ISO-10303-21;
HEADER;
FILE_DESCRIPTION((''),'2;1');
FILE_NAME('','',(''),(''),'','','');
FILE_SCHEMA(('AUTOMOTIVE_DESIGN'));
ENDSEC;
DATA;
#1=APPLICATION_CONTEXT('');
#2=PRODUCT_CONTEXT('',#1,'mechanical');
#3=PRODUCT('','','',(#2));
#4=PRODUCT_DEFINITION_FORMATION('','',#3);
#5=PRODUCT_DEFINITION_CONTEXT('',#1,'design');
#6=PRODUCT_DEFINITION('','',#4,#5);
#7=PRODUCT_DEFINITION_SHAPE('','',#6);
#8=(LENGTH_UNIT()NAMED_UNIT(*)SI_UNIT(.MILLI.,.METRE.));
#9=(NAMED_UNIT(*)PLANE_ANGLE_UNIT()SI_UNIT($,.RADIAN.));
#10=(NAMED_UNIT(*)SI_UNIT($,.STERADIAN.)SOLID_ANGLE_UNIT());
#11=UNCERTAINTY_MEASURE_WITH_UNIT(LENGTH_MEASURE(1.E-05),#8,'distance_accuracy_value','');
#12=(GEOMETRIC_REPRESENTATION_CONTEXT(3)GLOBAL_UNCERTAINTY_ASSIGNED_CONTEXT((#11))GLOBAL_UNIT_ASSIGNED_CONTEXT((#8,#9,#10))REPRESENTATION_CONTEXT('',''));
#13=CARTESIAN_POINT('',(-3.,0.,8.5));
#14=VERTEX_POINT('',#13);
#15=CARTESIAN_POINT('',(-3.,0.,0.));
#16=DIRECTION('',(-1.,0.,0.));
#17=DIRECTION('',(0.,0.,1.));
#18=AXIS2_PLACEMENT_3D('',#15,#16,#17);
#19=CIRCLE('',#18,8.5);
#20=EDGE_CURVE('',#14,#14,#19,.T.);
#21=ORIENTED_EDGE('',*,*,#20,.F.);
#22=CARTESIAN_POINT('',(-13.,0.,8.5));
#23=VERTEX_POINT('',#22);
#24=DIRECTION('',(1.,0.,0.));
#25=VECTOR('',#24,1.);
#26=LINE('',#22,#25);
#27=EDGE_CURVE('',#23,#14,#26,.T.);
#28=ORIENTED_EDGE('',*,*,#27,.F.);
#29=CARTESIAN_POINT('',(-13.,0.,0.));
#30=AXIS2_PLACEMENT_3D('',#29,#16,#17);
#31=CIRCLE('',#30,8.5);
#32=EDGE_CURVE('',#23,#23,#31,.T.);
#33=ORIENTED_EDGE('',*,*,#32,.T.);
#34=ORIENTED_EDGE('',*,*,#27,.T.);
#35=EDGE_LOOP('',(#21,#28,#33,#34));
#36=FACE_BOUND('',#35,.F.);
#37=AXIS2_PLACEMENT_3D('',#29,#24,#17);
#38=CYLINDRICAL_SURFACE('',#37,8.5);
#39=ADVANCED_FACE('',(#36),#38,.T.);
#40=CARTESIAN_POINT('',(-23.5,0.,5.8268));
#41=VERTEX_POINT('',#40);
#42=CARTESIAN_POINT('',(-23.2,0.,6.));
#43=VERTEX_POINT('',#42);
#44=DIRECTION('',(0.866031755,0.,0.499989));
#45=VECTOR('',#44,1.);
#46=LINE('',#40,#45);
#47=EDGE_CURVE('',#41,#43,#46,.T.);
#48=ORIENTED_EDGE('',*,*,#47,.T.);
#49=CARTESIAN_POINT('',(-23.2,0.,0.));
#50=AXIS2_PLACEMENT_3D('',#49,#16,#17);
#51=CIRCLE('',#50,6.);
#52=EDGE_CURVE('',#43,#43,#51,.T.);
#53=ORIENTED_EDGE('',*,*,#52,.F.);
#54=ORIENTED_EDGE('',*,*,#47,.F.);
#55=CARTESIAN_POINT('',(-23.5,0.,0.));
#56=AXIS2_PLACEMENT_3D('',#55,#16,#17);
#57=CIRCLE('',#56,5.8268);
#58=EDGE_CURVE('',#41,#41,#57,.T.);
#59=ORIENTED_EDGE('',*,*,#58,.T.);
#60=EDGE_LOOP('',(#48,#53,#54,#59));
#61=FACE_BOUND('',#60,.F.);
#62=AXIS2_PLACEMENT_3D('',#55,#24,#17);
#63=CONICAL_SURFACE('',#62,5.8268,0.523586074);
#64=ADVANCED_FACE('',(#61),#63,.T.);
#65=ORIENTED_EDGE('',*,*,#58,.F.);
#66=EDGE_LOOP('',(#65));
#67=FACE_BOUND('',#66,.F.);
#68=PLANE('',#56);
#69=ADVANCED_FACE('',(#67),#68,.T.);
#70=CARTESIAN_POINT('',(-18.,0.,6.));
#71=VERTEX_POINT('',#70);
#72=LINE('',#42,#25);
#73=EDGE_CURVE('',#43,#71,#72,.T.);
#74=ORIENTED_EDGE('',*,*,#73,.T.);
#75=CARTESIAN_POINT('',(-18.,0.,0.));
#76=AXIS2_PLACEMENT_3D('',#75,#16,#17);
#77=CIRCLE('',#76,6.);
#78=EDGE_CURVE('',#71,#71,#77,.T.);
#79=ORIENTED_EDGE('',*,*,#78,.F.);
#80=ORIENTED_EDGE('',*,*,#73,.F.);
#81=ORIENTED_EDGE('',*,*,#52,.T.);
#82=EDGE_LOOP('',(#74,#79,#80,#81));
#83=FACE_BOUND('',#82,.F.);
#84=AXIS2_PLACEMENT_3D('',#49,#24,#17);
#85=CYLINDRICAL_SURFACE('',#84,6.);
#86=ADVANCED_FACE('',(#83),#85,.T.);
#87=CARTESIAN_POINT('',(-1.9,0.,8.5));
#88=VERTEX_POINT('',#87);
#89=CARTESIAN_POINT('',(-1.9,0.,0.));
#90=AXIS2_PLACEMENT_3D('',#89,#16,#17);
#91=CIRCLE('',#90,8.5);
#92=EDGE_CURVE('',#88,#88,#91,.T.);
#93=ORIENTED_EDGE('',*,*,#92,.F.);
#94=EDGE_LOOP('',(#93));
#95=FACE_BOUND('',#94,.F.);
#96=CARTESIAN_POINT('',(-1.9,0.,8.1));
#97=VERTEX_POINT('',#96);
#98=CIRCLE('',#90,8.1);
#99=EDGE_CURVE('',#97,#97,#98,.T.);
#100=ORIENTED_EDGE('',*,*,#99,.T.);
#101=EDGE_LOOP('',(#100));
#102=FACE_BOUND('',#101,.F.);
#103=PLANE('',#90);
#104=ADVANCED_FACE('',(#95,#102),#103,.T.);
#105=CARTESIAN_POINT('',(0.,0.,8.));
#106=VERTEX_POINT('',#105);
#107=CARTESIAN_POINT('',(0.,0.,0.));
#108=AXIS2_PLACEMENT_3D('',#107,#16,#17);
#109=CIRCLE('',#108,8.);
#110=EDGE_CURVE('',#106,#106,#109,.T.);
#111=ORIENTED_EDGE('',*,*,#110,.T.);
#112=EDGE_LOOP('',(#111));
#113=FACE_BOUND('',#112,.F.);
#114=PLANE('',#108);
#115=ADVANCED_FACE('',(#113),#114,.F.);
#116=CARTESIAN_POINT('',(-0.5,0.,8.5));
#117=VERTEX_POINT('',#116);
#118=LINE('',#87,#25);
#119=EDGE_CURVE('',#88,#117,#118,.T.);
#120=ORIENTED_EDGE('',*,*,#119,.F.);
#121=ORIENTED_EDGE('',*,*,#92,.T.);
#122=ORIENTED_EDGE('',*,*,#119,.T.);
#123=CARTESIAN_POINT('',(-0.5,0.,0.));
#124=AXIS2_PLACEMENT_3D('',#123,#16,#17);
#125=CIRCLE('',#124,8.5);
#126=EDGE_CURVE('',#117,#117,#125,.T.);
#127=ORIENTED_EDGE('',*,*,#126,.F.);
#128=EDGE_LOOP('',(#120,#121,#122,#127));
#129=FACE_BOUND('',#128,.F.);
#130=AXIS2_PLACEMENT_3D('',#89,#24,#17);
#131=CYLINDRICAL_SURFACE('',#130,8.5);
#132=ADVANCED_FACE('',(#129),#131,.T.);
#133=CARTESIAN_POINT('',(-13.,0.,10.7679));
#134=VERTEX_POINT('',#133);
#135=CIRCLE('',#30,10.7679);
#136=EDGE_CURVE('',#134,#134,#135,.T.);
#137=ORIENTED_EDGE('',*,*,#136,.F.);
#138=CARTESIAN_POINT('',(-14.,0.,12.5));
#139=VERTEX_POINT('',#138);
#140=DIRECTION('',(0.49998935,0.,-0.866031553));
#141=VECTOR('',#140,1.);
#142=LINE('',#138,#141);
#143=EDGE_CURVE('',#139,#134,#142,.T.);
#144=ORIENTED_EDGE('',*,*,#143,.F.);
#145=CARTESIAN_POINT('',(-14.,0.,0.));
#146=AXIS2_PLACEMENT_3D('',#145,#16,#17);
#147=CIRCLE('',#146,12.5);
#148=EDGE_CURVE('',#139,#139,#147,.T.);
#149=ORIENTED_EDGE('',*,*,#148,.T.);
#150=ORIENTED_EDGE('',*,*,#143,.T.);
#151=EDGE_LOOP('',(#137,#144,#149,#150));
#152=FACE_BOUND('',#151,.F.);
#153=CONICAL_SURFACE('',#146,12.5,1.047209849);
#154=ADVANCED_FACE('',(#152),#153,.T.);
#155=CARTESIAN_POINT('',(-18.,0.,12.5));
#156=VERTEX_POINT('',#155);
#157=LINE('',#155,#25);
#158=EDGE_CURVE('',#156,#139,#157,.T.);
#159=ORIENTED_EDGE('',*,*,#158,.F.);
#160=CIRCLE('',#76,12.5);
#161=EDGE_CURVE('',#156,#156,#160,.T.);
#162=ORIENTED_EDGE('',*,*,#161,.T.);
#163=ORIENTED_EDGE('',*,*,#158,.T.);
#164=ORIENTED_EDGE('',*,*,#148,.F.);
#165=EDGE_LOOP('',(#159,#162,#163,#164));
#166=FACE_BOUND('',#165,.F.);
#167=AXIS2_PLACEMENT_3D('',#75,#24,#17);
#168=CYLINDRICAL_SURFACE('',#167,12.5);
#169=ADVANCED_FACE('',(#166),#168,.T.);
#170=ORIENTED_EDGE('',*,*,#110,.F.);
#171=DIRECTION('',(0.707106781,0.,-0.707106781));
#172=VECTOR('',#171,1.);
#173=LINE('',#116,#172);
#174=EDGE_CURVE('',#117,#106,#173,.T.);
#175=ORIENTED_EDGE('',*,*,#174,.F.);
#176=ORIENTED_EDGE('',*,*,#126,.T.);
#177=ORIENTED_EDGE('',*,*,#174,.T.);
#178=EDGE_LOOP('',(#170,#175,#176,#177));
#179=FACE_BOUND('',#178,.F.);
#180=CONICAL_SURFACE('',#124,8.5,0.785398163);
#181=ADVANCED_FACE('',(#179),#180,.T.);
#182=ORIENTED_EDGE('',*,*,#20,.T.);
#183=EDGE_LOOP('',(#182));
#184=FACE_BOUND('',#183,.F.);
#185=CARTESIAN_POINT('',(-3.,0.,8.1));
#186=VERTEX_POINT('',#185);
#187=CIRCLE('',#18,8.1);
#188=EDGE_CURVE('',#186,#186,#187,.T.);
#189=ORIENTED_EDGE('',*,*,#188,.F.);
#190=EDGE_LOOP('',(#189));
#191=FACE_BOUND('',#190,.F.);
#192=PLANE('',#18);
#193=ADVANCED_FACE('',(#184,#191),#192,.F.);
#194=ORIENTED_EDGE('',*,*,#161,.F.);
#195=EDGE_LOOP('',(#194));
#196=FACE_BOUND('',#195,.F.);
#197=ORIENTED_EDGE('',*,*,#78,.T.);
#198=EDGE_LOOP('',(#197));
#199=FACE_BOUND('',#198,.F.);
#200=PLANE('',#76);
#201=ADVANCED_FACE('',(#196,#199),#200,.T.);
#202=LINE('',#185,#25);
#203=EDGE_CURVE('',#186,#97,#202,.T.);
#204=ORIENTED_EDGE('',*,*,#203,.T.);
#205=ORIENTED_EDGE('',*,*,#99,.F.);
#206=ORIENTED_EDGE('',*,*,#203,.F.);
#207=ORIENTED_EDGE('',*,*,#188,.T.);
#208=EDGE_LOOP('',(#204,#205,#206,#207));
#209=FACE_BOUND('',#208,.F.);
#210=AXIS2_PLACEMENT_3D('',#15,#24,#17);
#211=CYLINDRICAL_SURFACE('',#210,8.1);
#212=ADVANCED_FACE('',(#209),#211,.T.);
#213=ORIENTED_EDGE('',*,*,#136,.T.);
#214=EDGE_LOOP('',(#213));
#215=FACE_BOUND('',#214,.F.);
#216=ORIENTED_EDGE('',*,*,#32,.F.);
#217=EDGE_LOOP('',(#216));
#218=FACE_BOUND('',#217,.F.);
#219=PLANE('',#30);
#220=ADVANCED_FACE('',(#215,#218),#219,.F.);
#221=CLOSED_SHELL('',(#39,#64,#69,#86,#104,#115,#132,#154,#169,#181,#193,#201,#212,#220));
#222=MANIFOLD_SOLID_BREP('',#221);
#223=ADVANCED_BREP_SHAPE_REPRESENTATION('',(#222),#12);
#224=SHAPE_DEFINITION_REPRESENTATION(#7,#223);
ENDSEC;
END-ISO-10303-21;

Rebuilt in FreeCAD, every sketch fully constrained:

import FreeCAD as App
import Part
import Sketcher
from FreeCAD import Vector
Q = App.Units.Quantity

doc = App.newDocument("Part")
params = doc.addObject("Spreadsheet::Sheet", "Params")
for row, (alias, value) in enumerate([
    ("sketch1_width", "4 mm"),
    ("sketch1_width2", "10 mm"),
    ("sketch1_height", "8 mm"),
    ("sketch1_length", "2 mm"),
    ("sketch1_width3", "23.5 mm"),
    ("revolution_angle", "360 deg"),
], start=1):
    params.set(f"A{row}", alias)
    params.set(f"B{row}", "=" + value)
    params.setAlias(f"B{row}", alias)

body = doc.addObject("PartDesign::Body", "Body")

sketch1 = body.newObject("Sketcher::SketchObject", "Sketch")
sketch1.AttachmentSupport = (doc.getObject("XZ_Plane"), [""])
sketch1.MapMode = "FlatFace"
sketch1.addGeometry([
    Part.LineSegment(Vector(0, 8, 0), Vector(0, 0, 0)),
    Part.LineSegment(Vector(0, 0, 0), Vector(-23.5, 0, 0)),
    Part.LineSegment(Vector(-23.5, 0, 0), Vector(-23.5, 5.83, 0)),
    Part.LineSegment(Vector(-23.5, 5.83, 0), Vector(-23.2, 6, 0)),
    Part.LineSegment(Vector(-23.2, 6, 0), Vector(-18, 6, 0)),
    Part.LineSegment(Vector(-18, 6, 0), Vector(-18, 12.5, 0)),
    Part.LineSegment(Vector(-18, 12.5, 0), Vector(-14, 12.5, 0)),
    Part.LineSegment(Vector(-14, 12.5, 0), Vector(-13, 10.77, 0)),
    Part.LineSegment(Vector(-13, 10.77, 0), Vector(-13, 8.5, 0)),
    Part.LineSegment(Vector(-13, 8.5, 0), Vector(-3, 8.5, 0)),
    Part.LineSegment(Vector(-3, 8.5, 0), Vector(-3, 8.1, 0)),
    Part.LineSegment(Vector(-3, 8.1, 0), Vector(-1.9, 8.1, 0)),
    Part.LineSegment(Vector(-1.9, 8.1, 0), Vector(-1.9, 8.5, 0)),
    Part.LineSegment(Vector(-1.9, 8.5, 0), Vector(-0.5, 8.5, 0)),
    Part.LineSegment(Vector(-0.5, 8.5, 0), Vector(0, 8, 0)),
], False)
sketch1.addConstraint([
    Sketcher.Constraint("Coincident", 0, 2, 1, 1),
    Sketcher.Constraint("Coincident", 1, 2, 2, 1),
    Sketcher.Constraint("Coincident", 2, 2, 3, 1),
    Sketcher.Constraint("Coincident", 3, 2, 4, 1),
    Sketcher.Constraint("Coincident", 4, 2, 5, 1),
    Sketcher.Constraint("Coincident", 5, 2, 6, 1),
    Sketcher.Constraint("Coincident", 6, 2, 7, 1),
    Sketcher.Constraint("Coincident", 7, 2, 8, 1),
    Sketcher.Constraint("Coincident", 8, 2, 9, 1),
    Sketcher.Constraint("Coincident", 9, 2, 10, 1),
    Sketcher.Constraint("Coincident", 10, 2, 11, 1),
    Sketcher.Constraint("Coincident", 11, 2, 12, 1),
    Sketcher.Constraint("Coincident", 12, 2, 13, 1),
    Sketcher.Constraint("Coincident", 13, 2, 14, 1),
    Sketcher.Constraint("Coincident", 14, 2, 0, 1),
    Sketcher.Constraint("Vertical", 0),
    Sketcher.Constraint("Horizontal", 1),
    Sketcher.Constraint("Vertical", 2),
    Sketcher.Constraint("Horizontal", 4),
    Sketcher.Constraint("Vertical", 5),
    Sketcher.Constraint("Horizontal", 6),
    Sketcher.Constraint("Vertical", 8),
    Sketcher.Constraint("Horizontal", 9),
    Sketcher.Constraint("Vertical", 10),
    Sketcher.Constraint("Horizontal", 11),
    Sketcher.Constraint("Vertical", 12),
    Sketcher.Constraint("Horizontal", 13),
    Sketcher.Constraint("Coincident", 0, 2, -1, 1),
    Sketcher.Constraint("Perpendicular", 3, 7),
    Sketcher.Constraint("Horizontal", 9, 2, 12, 2),
    Sketcher.Constraint("DistanceX", 6, 1, 6, 2, 4.0),
    Sketcher.Constraint("DistanceX", 9, 1, 9, 2, 10.0),
    Sketcher.Constraint("DistanceY", 0, 2, 0, 1, 8.0),
    Sketcher.Constraint("Distance", 7, 2.0),
    Sketcher.Constraint("DistanceX", 1, 2, 1, 1, 23.5),
    Sketcher.Constraint("DistanceX", 4, 1, 4, 2, 5.2),
    Sketcher.Constraint("DistanceX", 11, 1, 11, 2, 1.1),
    Sketcher.Constraint("DistanceX", 13, 1, 13, 2, 1.4),
    Sketcher.Constraint("DistanceY", 5, 1, 5, 2, 6.5),
    Sketcher.Constraint("DistanceY", 10, 2, 10, 1, 0.4),
    Sketcher.Constraint("DistanceY", -1, 1, 3, 2, 6.0),
    Sketcher.Constraint("DistanceY", 8, 2, 6, 2, 4.0),
    Sketcher.Constraint("DistanceY", 8, 2, 8, 1, 2.268),
    Sketcher.Constraint("Angle", 14, Q("-45 deg")),
])
sketch1.setExpression("Constraints[30]", "Params.sketch1_width")
sketch1.setExpression("Constraints[31]", "Params.sketch1_width2")
sketch1.setExpression("Constraints[32]", "Params.sketch1_height")
sketch1.setExpression("Constraints[33]", "Params.sketch1_length")
sketch1.setExpression("Constraints[34]", "Params.sketch1_width3")
revolution = body.newObject("PartDesign::Revolution", "Revolution")
revolution.Profile = sketch1
revolution.ReferenceAxis = (sketch1, ["H_Axis"])
revolution.setExpression("Angle", "Params.revolution_angle")

doc.recompute()
